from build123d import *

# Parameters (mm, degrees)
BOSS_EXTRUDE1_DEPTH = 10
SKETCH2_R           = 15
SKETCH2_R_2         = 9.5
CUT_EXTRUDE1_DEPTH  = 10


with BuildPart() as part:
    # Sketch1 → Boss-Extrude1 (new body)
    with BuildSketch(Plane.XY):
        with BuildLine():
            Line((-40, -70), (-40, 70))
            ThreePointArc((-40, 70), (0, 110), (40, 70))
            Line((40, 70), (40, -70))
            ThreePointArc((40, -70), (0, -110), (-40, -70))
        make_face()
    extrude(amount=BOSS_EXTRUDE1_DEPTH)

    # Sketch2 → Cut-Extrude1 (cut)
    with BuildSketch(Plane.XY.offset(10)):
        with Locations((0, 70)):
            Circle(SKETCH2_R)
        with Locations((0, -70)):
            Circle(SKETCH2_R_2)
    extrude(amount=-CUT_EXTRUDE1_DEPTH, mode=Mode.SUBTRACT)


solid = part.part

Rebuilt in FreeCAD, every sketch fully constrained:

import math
import FreeCAD as App
import Part
import Sketcher
from FreeCAD import Vector

doc = App.newDocument("Part")
body = doc.addObject("PartDesign::Body", "Body")

sketch1 = body.newObject("Sketcher::SketchObject", "Sketch")
sketch1.AttachmentSupport = (doc.getObject("XY_Plane"), [""])
sketch1.MapMode = "FlatFace"
sketch1.addGeometry(Part.LineSegment(Vector(-40, 70, 0), Vector(-40, -70, 0)), False)
sketch1.addGeometry(Part.ArcOfCircle(Part.Circle(Vector(0, -70, 0), Vector(0, 0, 1), 40), math.radians(180), math.radians(360)), False)
sketch1.addGeometry(Part.LineSegment(Vector(40, -70, 0), Vector(40, 70, 0)), False)
sketch1.addGeometry(Part.ArcOfCircle(Part.Circle(Vector(0, 70, 0), Vector(0, 0, 1), 40), math.radians(0), math.radians(180)), False)
sketch1.addConstraint(Sketcher.Constraint("Tangent", 0, 2, 1, 1))
sketch1.addConstraint(Sketcher.Constraint("Tangent", 1, 2, 2, 1))
sketch1.addConstraint(Sketcher.Constraint("Tangent", 2, 2, 3, 1))
sketch1.addConstraint(Sketcher.Constraint("Tangent", 3, 2, 0, 1))
sketch1.addConstraint(Sketcher.Constraint("Vertical", 0))
sketch1.addConstraint(Sketcher.Constraint("Vertical", 2))
sketch1.addConstraint(Sketcher.Constraint("Symmetric", 1, 3, 3, 3, -1, 1))
sketch1.addConstraint(Sketcher.Constraint("Radius", 1, 40.0))
sketch1.addConstraint(Sketcher.Constraint("DistanceY", 0, 2, 0, 1, 140.0))
pad1 = body.newObject("PartDesign::Pad", "Pad")
pad1.Profile = sketch1
pad1.Length = 10

sketch2 = body.newObject("Sketcher::SketchObject", "Sketch001")
sketch2.AttachmentSupport = (doc.getObject("XY_Plane"), [""])
sketch2.MapMode = "FlatFace"
sketch2.AttachmentOffset = App.Placement(Vector(0, 0, 10), App.Rotation())
sketch2.addGeometry(Part.Circle(Vector(0, 70, 0), Vector(0, 0, 1), 15), False)
sketch2.addGeometry(Part.Circle(Vector(0, -70, 0), Vector(0, 0, 1), 10), False)
sketch2.addConstraint(Sketcher.Constraint("Symmetric", 0, 3, 1, 3, -1, 1))
sketch2.addConstraint(Sketcher.Constraint("PointOnObject", 0, 3, -2))
sketch2.addConstraint(Sketcher.Constraint("Diameter", 0, 30.0))
sketch2.addConstraint(Sketcher.Constraint("Diameter", 1, 19.0))
sketch2.addConstraint(Sketcher.Constraint("DistanceY", -1, 1, 0, 3, 70.0))
pocket1 = body.newObject("PartDesign::Pocket", "Pocket")
pocket1.Profile = sketch2
pocket1.Length = 10

doc.recompute()
